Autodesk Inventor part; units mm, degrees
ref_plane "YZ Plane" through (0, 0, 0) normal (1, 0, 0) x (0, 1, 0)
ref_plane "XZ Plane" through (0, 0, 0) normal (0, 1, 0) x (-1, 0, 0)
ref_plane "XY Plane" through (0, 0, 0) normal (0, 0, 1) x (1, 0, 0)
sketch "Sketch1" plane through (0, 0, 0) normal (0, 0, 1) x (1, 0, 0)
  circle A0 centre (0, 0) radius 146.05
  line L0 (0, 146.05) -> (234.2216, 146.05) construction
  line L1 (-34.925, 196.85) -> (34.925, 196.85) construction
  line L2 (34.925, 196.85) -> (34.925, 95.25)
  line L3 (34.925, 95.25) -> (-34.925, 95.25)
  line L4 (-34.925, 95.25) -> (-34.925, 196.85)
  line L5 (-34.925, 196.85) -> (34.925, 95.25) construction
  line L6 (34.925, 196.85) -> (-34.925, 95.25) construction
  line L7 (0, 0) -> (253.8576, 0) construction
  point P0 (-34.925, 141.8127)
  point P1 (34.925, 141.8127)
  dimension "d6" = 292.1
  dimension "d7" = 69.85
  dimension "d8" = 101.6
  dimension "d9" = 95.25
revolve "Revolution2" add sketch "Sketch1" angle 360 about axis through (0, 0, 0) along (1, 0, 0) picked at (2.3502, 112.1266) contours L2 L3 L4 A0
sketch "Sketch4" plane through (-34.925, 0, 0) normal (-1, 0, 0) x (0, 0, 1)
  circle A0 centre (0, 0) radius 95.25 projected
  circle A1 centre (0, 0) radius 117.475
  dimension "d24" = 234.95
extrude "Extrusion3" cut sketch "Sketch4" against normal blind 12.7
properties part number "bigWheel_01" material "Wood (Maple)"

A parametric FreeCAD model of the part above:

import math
import FreeCAD as App
import Part
import Sketcher
from FreeCAD import Vector
Q = App.Units.Quantity

doc = App.newDocument("Part")
body = doc.addObject("PartDesign::Body", "Body")

# Sketch on XY plane
sketch1 = body.newObject("Sketcher::SketchObject", "Sketch")
sketch1.AttachmentSupport = (doc.getObject("XY_Plane"), [""])
sketch1.MapMode = "FlatFace"
sketch1.addGeometry(Part.LineSegment(Vector(35, 95, 0), Vector(35, 142, 0)), False)
sketch1.addGeometry(Part.ArcOfCircle(Part.Circle(Vector(0, 0, 0), Vector(0, 0, 1), 146), math.radians(76), math.radians(104)), False)
sketch1.addGeometry(Part.LineSegment(Vector(-35, 142, 0), Vector(-35, 95, 0)), False)
sketch1.addGeometry(Part.LineSegment(Vector(-35, 95, 0), Vector(35, 95, 0)), False)
sketch1.addConstraint(Sketcher.Constraint("Coincident", 0, 2, 1, 1))
sketch1.addConstraint(Sketcher.Constraint("Coincident", 1, 2, 2, 1))
sketch1.addConstraint(Sketcher.Constraint("Coincident", 2, 2, 3, 1))
sketch1.addConstraint(Sketcher.Constraint("Coincident", 3, 2, 0, 1))
sketch1.addConstraint(Sketcher.Constraint("Vertical", 0))
sketch1.addConstraint(Sketcher.Constraint("Vertical", 2))
sketch1.addConstraint(Sketcher.Constraint("Horizontal", 3))
sketch1.addConstraint(Sketcher.Constraint("Coincident", 1, 3, -1, 1))
sketch1.addConstraint(Sketcher.Constraint("Horizontal", 0, 2, 1, 2))
sketch1.addConstraint(Sketcher.Constraint("Radius", 1, Q("5.75 in")))
sketch1.addConstraint(Sketcher.Constraint("DistanceX", 3, 1, 3, 2, Q("2.75 in")))
sketch1.addConstraint(Sketcher.Constraint("DistanceY", -1, 1, 2, 2, Q("3.75 in")))
revolution = body.newObject("PartDesign::Revolution", "Revolution")
revolution.Profile = sketch1
revolution.ReferenceAxis = (sketch1, ["H_Axis"])
revolution.Angle = 360

# Sketch on YZ plane
sketch2 = body.newObject("Sketcher::SketchObject", "Sketch001")
sketch2.AttachmentSupport = (doc.getObject("YZ_Plane"), [""])
sketch2.MapMode = "FlatFace"
sketch2.AttachmentOffset = App.Placement(Vector(0, 0, -1.375 * 25.4), App.Rotation())
sketch2.addGeometry(Part.Circle(Vector(0, 0, 0), Vector(0, 0, 1), 117), False)
sketch2.addGeometry(Part.Circle(Vector(0, 0, 0), Vector(0, 0, 1), 95), False)
sketch2.addConstraint(Sketcher.Constraint("Coincident", 0, 3, -1, 1))
sketch2.addConstraint(Sketcher.Constraint("Coincident", 1, 3, -1, 1))
sketch2.addConstraint(Sketcher.Constraint("Diameter", 0, Q("9.25 in")))
sketch2.addConstraint(Sketcher.Constraint("Diameter", 1, Q("7.5 in")))
pocket1 = body.newObject("PartDesign::Pocket", "Pocket")
pocket1.Profile = sketch2
pocket1.Length = Q("0.5 in")
pocket1.Reversed = True

doc.recompute()
